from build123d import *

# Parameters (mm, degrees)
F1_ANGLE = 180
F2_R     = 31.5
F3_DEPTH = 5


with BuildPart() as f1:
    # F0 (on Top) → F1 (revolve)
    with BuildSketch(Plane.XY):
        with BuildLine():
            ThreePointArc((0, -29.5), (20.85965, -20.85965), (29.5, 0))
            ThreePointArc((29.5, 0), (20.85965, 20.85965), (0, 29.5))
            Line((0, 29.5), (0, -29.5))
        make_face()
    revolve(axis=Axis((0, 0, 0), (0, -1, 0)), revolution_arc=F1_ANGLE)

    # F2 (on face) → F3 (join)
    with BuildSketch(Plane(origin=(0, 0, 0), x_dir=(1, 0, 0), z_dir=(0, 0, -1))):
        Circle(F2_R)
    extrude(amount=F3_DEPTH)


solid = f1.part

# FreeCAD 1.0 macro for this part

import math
import FreeCAD as App
import Part
import Sketcher
from FreeCAD import Vector
Q = App.Units.Quantity

doc = App.newDocument("Part")
body = doc.addObject("PartDesign::Body", "Body")

sketch1 = doc.addObject("Sketcher::SketchObject", "Sketch")
body.addObject(sketch1)
sketch1.AttachmentSupport = (doc.XY_Plane, [""])
sketch1.MapMode = "FlatFace"
sketch1.addGeometry([
    Part.ArcOfCircle(Part.Circle(Vector(0, 0, 0), Vector(0, 0, 1), 29.5), math.radians(-90), math.radians(0)),
    Part.ArcOfCircle(Part.Circle(Vector(0, 0, 0), Vector(0, 0, 1), 29.5), math.radians(0), math.radians(90)),
    Part.LineSegment(Vector(0, 29.5, 0), Vector(0, -29.5, 0)),
], False)
sketch1.addConstraint([
    Sketcher.Constraint("Tangent", 0, 2, 1, 1),
    Sketcher.Constraint("Coincident", 1, 2, 2, 1),
    Sketcher.Constraint("Coincident", 2, 2, 0, 1),
    Sketcher.Constraint("Vertical", 2),
    Sketcher.Constraint("Coincident", 0, 3, -1, 1),
    Sketcher.Constraint("Equal", 0, 1),
    Sketcher.Constraint("PointOnObject", 0, 2, -1),
    Sketcher.Constraint("PointOnObject", 1, 2, -2),
    Sketcher.Constraint("Radius", 0, Q("29.5 mm")),
])
revolution = doc.addObject("PartDesign::Revolution", "Revolution")
body.addObject(revolution)
revolution.Profile = sketch1
revolution.ReferenceAxis = (sketch1, ["V_Axis"])
revolution.Angle = 180
revolution.Reversed = True

sketch2 = doc.addObject("Sketcher::SketchObject", "Sketch001")
body.addObject(sketch2)
sketch2.AttachmentSupport = (doc.XY_Plane, [""])
sketch2.MapMode = "FlatFace"
sketch2.addGeometry(Part.Circle(Vector(0, 0, 0), Vector(0, 0, 1), 31.5), False)
sketch2.addConstraint([
    Sketcher.Constraint("Coincident", 0, 3, -1, 1),
    Sketcher.Constraint("Diameter", 0, Q("63 mm")),
])
pad1 = doc.addObject("PartDesign::Pad", "Pad")
body.addObject(pad1)
pad1.Profile = sketch2
pad1.Length = 5
pad1.Reversed = True

doc.recompute()
